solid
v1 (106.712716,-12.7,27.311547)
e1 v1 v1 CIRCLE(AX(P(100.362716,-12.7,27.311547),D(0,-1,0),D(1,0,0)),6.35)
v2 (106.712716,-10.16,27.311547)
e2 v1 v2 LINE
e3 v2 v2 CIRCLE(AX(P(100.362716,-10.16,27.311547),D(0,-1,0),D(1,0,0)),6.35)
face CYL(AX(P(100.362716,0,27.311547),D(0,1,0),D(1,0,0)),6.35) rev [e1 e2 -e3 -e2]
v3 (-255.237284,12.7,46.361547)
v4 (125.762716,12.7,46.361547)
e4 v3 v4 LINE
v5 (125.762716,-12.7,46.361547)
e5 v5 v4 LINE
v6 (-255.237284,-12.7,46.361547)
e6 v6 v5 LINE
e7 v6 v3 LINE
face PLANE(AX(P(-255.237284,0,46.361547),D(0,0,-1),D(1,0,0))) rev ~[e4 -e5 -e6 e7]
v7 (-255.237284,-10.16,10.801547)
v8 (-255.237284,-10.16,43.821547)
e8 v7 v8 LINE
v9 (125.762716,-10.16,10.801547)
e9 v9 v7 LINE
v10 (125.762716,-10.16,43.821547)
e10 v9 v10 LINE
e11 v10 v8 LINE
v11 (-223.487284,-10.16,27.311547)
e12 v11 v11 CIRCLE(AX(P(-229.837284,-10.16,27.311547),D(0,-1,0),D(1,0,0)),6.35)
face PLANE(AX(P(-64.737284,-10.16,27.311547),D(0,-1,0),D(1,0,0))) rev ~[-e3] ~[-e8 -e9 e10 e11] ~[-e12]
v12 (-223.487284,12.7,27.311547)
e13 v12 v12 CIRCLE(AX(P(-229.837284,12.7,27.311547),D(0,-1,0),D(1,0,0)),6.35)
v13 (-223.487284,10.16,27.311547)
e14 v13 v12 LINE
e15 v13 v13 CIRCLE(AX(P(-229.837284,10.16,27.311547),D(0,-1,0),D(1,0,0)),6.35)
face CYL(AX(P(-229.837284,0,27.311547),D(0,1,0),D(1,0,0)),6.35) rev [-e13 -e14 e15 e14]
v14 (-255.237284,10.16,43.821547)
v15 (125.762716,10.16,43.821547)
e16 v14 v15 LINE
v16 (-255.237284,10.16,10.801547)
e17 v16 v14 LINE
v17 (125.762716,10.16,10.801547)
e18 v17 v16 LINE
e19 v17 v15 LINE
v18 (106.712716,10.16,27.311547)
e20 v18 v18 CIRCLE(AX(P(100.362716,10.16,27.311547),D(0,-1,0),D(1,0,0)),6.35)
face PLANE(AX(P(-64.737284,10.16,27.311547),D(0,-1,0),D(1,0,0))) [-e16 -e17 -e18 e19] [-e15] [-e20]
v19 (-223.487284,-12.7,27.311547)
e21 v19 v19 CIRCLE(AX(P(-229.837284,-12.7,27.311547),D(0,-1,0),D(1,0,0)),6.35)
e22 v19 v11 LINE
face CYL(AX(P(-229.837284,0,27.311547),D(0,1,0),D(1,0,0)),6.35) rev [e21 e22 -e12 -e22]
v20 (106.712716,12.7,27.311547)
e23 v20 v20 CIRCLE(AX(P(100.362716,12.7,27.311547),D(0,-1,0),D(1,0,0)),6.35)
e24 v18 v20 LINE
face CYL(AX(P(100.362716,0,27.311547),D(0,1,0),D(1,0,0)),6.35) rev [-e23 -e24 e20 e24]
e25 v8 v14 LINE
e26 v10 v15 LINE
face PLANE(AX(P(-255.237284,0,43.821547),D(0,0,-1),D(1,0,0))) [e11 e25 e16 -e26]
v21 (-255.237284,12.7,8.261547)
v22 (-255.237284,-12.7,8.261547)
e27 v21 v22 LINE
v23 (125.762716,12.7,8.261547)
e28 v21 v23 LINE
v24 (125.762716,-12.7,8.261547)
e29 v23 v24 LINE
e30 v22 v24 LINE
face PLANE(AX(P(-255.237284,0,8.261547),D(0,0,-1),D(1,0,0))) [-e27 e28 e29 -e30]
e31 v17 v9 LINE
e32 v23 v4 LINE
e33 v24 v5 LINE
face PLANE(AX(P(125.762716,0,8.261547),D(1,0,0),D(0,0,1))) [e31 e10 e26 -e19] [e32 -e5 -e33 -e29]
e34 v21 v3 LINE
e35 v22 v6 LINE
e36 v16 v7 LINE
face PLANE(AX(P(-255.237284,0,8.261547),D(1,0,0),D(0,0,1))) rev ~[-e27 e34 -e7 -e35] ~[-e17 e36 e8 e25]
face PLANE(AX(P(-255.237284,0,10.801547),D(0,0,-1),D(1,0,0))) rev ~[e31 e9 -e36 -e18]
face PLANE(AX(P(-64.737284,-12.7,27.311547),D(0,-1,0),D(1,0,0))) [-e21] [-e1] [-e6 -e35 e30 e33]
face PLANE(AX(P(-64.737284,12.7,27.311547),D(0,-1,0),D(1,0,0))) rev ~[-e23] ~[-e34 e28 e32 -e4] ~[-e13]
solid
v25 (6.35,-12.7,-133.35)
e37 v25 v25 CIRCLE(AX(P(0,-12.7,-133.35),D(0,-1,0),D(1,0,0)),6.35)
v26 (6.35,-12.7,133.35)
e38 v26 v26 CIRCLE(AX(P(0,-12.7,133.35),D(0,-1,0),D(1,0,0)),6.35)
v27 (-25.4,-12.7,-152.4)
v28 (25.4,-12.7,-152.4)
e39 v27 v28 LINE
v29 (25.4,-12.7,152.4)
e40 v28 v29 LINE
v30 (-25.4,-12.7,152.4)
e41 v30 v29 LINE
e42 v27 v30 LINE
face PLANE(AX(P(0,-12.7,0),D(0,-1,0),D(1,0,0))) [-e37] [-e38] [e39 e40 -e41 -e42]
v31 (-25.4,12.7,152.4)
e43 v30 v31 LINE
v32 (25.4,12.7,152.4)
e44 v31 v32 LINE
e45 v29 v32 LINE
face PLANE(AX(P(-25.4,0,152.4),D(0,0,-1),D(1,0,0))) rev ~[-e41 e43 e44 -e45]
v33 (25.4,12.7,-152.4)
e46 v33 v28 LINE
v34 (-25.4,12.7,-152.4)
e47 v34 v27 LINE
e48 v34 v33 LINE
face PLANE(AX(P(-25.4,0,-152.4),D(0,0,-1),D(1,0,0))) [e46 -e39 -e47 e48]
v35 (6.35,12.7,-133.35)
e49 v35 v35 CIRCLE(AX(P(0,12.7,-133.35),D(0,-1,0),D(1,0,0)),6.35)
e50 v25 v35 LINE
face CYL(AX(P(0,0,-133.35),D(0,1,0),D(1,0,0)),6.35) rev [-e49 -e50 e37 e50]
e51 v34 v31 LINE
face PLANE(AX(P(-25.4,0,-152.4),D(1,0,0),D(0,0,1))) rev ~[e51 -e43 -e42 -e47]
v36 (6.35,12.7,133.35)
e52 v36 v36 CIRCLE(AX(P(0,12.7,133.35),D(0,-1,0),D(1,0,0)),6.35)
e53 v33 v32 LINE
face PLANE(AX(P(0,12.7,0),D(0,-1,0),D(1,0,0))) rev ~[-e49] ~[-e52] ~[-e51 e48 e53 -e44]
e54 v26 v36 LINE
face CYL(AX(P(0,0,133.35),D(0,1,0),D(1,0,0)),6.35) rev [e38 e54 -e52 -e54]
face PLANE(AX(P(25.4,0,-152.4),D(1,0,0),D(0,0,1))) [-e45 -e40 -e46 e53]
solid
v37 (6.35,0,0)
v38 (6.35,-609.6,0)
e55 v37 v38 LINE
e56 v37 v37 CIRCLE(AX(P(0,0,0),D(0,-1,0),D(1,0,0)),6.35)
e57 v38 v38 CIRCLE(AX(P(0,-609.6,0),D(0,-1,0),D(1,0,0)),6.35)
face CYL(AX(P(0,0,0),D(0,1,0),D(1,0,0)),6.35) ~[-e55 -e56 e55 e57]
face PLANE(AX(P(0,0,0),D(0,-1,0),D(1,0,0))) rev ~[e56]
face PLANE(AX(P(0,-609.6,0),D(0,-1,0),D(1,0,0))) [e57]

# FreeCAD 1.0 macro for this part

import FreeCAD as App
import Part
import Sketcher
from FreeCAD import Vector
Q = App.Units.Quantity


def faces_at(feature, points):
    """Names of the faces that lie closest to the given points."""
    faces = feature.Shape.Faces
    near = lambda p: min(range(len(faces)), key=lambda i: faces[i].distToShape(Part.Vertex(*p))[0])
    return sorted({f"Face{near(p) + 1}" for p in points})

doc = App.newDocument("Part")
body = doc.addObject("PartDesign::Body", "Body")

sketch1 = body.newObject("Sketcher::SketchObject", "Sketch")
sketch1.AttachmentSupport = (doc.getObject("XZ_Plane"), [""])
sketch1.MapMode = "FlatFace"
sketch1.addGeometry([
    Part.LineSegment(Vector(-25, 152, 0), Vector(-25, -152, 0)),
    Part.LineSegment(Vector(-25, -152, 0), Vector(25, -152, 0)),
    Part.LineSegment(Vector(25, -152, 0), Vector(25, 152, 0)),
    Part.LineSegment(Vector(25, 152, 0), Vector(-25, 152, 0)),
    Part.Circle(Vector(0, -133, 0), Vector(0, 0, 1), 6),
    Part.Circle(Vector(0, 133, 0), Vector(0, 0, 1), 6),
], False)
sketch1.addConstraint([
    Sketcher.Constraint("Coincident", 0, 2, 1, 1),
    Sketcher.Constraint("Coincident", 1, 2, 2, 1),
    Sketcher.Constraint("Coincident", 2, 2, 3, 1),
    Sketcher.Constraint("Coincident", 3, 2, 0, 1),
    Sketcher.Constraint("Vertical", 0),
    Sketcher.Constraint("Horizontal", 1),
    Sketcher.Constraint("Vertical", 2),
    Sketcher.Constraint("Horizontal", 3),
    Sketcher.Constraint("Equal", 4, 5),
    Sketcher.Constraint("Symmetric", 4, 3, 5, 3, -1, 1),
    Sketcher.Constraint("Symmetric", 0, 2, 2, 2, -1, 1),
    Sketcher.Constraint("PointOnObject", 4, 3, -2),
    Sketcher.Constraint("Diameter", 4, Q("0.5 in")),
    Sketcher.Constraint("DistanceX", 1, 1, 1, 2, Q("2 in")),
    Sketcher.Constraint("DistanceY", 0, 2, 0, 1, Q("12 in")),
    Sketcher.Constraint("DistanceY", 4, 3, 5, 3, Q("10.5 in")),
])
pad1 = body.newObject("PartDesign::Pad", "Pad")
pad1.Profile = sketch1
pad1.Length = Q("1 in")
pad1.Midplane = True
body2 = doc.addObject("PartDesign::Body", "Body001")

sketch2 = body2.newObject("Sketcher::SketchObject", "Sketch001")
sketch2.AttachmentSupport = (doc.getObject("XZ_Plane001"), [""])
sketch2.MapMode = "FlatFace"
sketch2.addGeometry([
    Part.LineSegment(Vector(-255, 46, 0), Vector(-255, 8, 0)),
    Part.LineSegment(Vector(-255, 8, 0), Vector(126, 8, 0)),
    Part.LineSegment(Vector(126, 8, 0), Vector(126, 46, 0)),
    Part.LineSegment(Vector(126, 46, 0), Vector(-255, 46, 0)),
    Part.Circle(Vector(-230, 27, 0), Vector(0, 0, 1), 6),
    Part.Circle(Vector(100, 27, 0), Vector(0, 0, 1), 6),
], False)
sketch2.addConstraint([
    Sketcher.Constraint("Coincident", 0, 2, 1, 1),
    Sketcher.Constraint("Coincident", 1, 2, 2, 1),
    Sketcher.Constraint("Coincident", 2, 2, 3, 1),
    Sketcher.Constraint("Coincident", 3, 2, 0, 1),
    Sketcher.Constraint("Vertical", 0),
    Sketcher.Constraint("Horizontal", 1),
    Sketcher.Constraint("Vertical", 2),
    Sketcher.Constraint("Horizontal", 3),
    Sketcher.Constraint("Equal", 4, 5),
    Sketcher.Constraint("Horizontal", 4, 3, 5, 3),
    Sketcher.Constraint("Diameter", 4, Q("0.5 in")),
    Sketcher.Constraint("DistanceX", 1, 1, 1, 2, Q("15 in")),
    Sketcher.Constraint("DistanceY", 0, 2, 0, 1, Q("1.5 in")),
    Sketcher.Constraint("DistanceX", 4, 3, 5, 3, Q("13 in")),
    Sketcher.Constraint("DistanceX", 0, 2, 4, 3, Q("1 in")),
    Sketcher.Constraint("DistanceY", 0, 2, 4, 3, Q("0.75 in")),
    Sketcher.Constraint("DistanceX", 4, 3, -1, 1, Q("229.837284 mm")),
    Sketcher.Constraint("DistanceY", -1, 1, 4, 3, Q("27.311547 mm")),
])
pad2 = body2.newObject("PartDesign::Pad", "Pad001")
pad2.Profile = sketch2
pad2.Length = Q("1 in")
pad2.Midplane = True
doc.recompute()

thickness = body2.newObject("PartDesign::Thickness", "Thickness")
thickness.Base = (pad2, faces_at(pad2, [
    (-255.237, 0, 27.312),
    (-236.187, 0, 27.312),
    (125.763, 0, 27.312),
    (94.013, 0, 27.312),
]))
thickness.Value = Q("0.1 in")
thickness.Reversed = True
thickness.Join = "Arc"
body3 = doc.addObject("PartDesign::Body", "Body002")

sketch3 = body3.newObject("Sketcher::SketchObject", "Sketch002")
sketch3.AttachmentSupport = (doc.getObject("XZ_Plane002"), [""])
sketch3.MapMode = "FlatFace"
sketch3.addGeometry(Part.Circle(Vector(0, 0, 0), Vector(0, 0, 1), 6), False)
sketch3.addConstraint([
    Sketcher.Constraint("Coincident", 0, 3, -1, 1),
    Sketcher.Constraint("Diameter", 0, Q("0.5 in")),
])
pad3 = body3.newObject("PartDesign::Pad", "Pad002")
pad3.Profile = sketch3
pad3.Length = Q("24 in")

doc.recompute()
